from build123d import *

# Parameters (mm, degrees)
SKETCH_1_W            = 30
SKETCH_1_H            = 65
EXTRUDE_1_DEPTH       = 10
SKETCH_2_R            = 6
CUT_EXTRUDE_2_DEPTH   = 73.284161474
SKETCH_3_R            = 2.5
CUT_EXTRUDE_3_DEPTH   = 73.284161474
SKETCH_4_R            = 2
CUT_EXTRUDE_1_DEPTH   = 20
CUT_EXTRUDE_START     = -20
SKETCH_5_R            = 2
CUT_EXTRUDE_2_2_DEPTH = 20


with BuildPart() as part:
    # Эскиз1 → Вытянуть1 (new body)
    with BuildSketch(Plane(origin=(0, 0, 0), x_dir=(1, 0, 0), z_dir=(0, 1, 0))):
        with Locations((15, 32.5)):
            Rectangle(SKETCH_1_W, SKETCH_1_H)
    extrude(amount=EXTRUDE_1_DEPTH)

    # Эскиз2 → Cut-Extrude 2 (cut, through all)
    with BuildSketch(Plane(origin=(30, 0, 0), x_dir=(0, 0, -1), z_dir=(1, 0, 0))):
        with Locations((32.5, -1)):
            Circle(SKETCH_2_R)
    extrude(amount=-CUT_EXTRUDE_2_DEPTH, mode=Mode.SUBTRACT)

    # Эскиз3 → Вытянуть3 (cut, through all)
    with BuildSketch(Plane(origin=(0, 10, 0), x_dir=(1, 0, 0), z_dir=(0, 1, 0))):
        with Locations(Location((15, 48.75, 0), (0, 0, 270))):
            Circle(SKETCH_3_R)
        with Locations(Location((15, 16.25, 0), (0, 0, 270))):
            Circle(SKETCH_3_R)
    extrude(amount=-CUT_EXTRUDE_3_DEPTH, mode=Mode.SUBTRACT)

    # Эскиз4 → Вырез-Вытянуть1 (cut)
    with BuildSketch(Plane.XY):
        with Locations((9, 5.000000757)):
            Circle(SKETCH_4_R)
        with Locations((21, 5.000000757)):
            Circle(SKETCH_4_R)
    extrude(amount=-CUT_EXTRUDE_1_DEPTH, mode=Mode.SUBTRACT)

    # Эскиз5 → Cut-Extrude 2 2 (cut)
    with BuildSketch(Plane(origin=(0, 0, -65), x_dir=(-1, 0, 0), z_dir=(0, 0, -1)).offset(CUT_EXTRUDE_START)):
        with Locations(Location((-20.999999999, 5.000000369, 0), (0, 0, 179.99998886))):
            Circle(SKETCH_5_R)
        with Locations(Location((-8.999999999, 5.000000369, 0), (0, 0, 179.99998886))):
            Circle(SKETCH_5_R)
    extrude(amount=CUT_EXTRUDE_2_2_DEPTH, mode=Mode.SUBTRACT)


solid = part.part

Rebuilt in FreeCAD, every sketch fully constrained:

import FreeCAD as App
import Part
import Sketcher
from FreeCAD import Vector

doc = App.newDocument("Part")
body = doc.addObject("PartDesign::Body", "Body")

# Sketch on XZ plane
sketch1 = body.newObject("Sketcher::SketchObject", "Sketch")
sketch1.AttachmentSupport = (doc.getObject("XZ_Plane"), [""])
sketch1.MapMode = "FlatFace"
sketch1.addGeometry([
    Part.LineSegment(Vector(0, -65, 0), Vector(0, 0, 0)),
    Part.LineSegment(Vector(0, 0, 0), Vector(30, 0, 0)),
    Part.LineSegment(Vector(30, 0, 0), Vector(30, -65, 0)),
    Part.LineSegment(Vector(30, -65, 0), Vector(0, -65, 0)),
], False)
sketch1.addConstraint([
    Sketcher.Constraint("Coincident", 0, 2, 1, 1),
    Sketcher.Constraint("Coincident", 1, 2, 2, 1),
    Sketcher.Constraint("Coincident", 2, 2, 3, 1),
    Sketcher.Constraint("Coincident", 3, 2, 0, 1),
    Sketcher.Constraint("Vertical", 0),
    Sketcher.Constraint("Horizontal", 1),
    Sketcher.Constraint("Vertical", 2),
    Sketcher.Constraint("Horizontal", 3),
    Sketcher.Constraint("Coincident", 0, 2, -1, 1),
    Sketcher.Constraint("DistanceX", 1, 1, 1, 2, 30.0),
    Sketcher.Constraint("DistanceY", 0, 1, 0, 2, 65.0),
])
pad1 = body.newObject("PartDesign::Pad", "Pad")
pad1.Profile = sketch1
pad1.Length = 10
pad1.Reversed = True

# Sketch on YZ plane
sketch2 = body.newObject("Sketcher::SketchObject", "Sketch001")
sketch2.AttachmentSupport = (doc.getObject("YZ_Plane"), [""])
sketch2.MapMode = "FlatFace"
sketch2.AttachmentOffset = App.Placement(Vector(0, 0, 30), App.Rotation())
sketch2.addGeometry(Part.Circle(Vector(-1, -32, 0), Vector(0, 0, 1), 6), False)
sketch2.addConstraint([
    Sketcher.Constraint("Diameter", 0, 12.0),
    Sketcher.Constraint("DistanceX", 0, 3, -1, 1, 1.0),
    Sketcher.Constraint("DistanceY", 0, 3, -1, 1, 32.5),
])
pocket1 = body.newObject("PartDesign::Pocket", "Pocket")
pocket1.Profile = sketch2
pocket1.Type = "ThroughAll"

# Sketch on XZ plane
sketch3 = body.newObject("Sketcher::SketchObject", "Sketch002")
sketch3.AttachmentSupport = (doc.getObject("XZ_Plane"), [""])
sketch3.MapMode = "FlatFace"
sketch3.AttachmentOffset = App.Placement(Vector(0, 0, -10), App.Rotation())
sketch3.addGeometry([
    Part.Circle(Vector(15, -48.8, 0), Vector(0, 0, 1), 2.5),
    Part.Circle(Vector(15, -16.2, 0), Vector(0, 0, 1), 2.5),
], False)
sketch3.addConstraint([
    Sketcher.Constraint("Equal", 0, 1),
    Sketcher.Constraint("Vertical", 0, 3, 1, 3),
    Sketcher.Constraint("Diameter", 0, 5.0),
    Sketcher.Constraint("DistanceX", -1, 1, 0, 3, 15.0),
    Sketcher.Constraint("DistanceY", 0, 3, 1, 3, 32.5),
    Sketcher.Constraint("DistanceY", 0, 3, -1, 1, 48.75),
])
pocket2 = body.newObject("PartDesign::Pocket", "Pocket001")
pocket2.Profile = sketch3
pocket2.Type = "ThroughAll"
pocket2.Reversed = True

# Sketch on XY plane
sketch4 = body.newObject("Sketcher::SketchObject", "Sketch003")
sketch4.AttachmentSupport = (doc.getObject("XY_Plane"), [""])
sketch4.MapMode = "FlatFace"
sketch4.addGeometry([
    Part.Circle(Vector(9, 5, 0), Vector(0, 0, 1), 2),
    Part.Circle(Vector(21, 5, 0), Vector(0, 0, 1), 2),
], False)
sketch4.addConstraint([
    Sketcher.Constraint("Equal", 0, 1),
    Sketcher.Constraint("Horizontal", 0, 3, 1, 3),
    Sketcher.Constraint("Diameter", 0, 4.0),
    Sketcher.Constraint("DistanceX", -1, 1, 0, 3, 9.0),
    Sketcher.Constraint("DistanceY", -1, 1, 0, 3, 5.000001),
    Sketcher.Constraint("DistanceX", -1, 1, 1, 3, 21.0),
])
pocket3 = body.newObject("PartDesign::Pocket", "Pocket002")
pocket3.Profile = sketch4
pocket3.Length = 20

# Sketch on XY plane
sketch5 = body.newObject("Sketcher::SketchObject", "Sketch004")
sketch5.AttachmentSupport = (doc.getObject("XY_Plane"), [""])
sketch5.MapMode = "FlatFace"
sketch5.AttachmentOffset = App.Placement(Vector(0, 0, -45), App.Rotation())
sketch5.addGeometry([
    Part.Circle(Vector(21, 5, 0), Vector(0, 0, 1), 2),
    Part.Circle(Vector(9, 5, 0), Vector(0, 0, 1), 2),
], False)
sketch5.addConstraint([
    Sketcher.Constraint("Equal", 0, 1),
    Sketcher.Constraint("Horizontal", 0, 3, 1, 3),
    Sketcher.Constraint("Diameter", 0, 4.0),
    Sketcher.Constraint("DistanceX", -1, 1, 0, 3, 21.0),
    Sketcher.Constraint("DistanceY", -1, 1, 0, 3, 5.0),
    Sketcher.Constraint("DistanceX", -1, 1, 1, 3, 9.0),
])
pocket4 = body.newObject("PartDesign::Pocket", "Pocket003")
pocket4.Profile = sketch5
pocket4.Length = 20

doc.recompute()
